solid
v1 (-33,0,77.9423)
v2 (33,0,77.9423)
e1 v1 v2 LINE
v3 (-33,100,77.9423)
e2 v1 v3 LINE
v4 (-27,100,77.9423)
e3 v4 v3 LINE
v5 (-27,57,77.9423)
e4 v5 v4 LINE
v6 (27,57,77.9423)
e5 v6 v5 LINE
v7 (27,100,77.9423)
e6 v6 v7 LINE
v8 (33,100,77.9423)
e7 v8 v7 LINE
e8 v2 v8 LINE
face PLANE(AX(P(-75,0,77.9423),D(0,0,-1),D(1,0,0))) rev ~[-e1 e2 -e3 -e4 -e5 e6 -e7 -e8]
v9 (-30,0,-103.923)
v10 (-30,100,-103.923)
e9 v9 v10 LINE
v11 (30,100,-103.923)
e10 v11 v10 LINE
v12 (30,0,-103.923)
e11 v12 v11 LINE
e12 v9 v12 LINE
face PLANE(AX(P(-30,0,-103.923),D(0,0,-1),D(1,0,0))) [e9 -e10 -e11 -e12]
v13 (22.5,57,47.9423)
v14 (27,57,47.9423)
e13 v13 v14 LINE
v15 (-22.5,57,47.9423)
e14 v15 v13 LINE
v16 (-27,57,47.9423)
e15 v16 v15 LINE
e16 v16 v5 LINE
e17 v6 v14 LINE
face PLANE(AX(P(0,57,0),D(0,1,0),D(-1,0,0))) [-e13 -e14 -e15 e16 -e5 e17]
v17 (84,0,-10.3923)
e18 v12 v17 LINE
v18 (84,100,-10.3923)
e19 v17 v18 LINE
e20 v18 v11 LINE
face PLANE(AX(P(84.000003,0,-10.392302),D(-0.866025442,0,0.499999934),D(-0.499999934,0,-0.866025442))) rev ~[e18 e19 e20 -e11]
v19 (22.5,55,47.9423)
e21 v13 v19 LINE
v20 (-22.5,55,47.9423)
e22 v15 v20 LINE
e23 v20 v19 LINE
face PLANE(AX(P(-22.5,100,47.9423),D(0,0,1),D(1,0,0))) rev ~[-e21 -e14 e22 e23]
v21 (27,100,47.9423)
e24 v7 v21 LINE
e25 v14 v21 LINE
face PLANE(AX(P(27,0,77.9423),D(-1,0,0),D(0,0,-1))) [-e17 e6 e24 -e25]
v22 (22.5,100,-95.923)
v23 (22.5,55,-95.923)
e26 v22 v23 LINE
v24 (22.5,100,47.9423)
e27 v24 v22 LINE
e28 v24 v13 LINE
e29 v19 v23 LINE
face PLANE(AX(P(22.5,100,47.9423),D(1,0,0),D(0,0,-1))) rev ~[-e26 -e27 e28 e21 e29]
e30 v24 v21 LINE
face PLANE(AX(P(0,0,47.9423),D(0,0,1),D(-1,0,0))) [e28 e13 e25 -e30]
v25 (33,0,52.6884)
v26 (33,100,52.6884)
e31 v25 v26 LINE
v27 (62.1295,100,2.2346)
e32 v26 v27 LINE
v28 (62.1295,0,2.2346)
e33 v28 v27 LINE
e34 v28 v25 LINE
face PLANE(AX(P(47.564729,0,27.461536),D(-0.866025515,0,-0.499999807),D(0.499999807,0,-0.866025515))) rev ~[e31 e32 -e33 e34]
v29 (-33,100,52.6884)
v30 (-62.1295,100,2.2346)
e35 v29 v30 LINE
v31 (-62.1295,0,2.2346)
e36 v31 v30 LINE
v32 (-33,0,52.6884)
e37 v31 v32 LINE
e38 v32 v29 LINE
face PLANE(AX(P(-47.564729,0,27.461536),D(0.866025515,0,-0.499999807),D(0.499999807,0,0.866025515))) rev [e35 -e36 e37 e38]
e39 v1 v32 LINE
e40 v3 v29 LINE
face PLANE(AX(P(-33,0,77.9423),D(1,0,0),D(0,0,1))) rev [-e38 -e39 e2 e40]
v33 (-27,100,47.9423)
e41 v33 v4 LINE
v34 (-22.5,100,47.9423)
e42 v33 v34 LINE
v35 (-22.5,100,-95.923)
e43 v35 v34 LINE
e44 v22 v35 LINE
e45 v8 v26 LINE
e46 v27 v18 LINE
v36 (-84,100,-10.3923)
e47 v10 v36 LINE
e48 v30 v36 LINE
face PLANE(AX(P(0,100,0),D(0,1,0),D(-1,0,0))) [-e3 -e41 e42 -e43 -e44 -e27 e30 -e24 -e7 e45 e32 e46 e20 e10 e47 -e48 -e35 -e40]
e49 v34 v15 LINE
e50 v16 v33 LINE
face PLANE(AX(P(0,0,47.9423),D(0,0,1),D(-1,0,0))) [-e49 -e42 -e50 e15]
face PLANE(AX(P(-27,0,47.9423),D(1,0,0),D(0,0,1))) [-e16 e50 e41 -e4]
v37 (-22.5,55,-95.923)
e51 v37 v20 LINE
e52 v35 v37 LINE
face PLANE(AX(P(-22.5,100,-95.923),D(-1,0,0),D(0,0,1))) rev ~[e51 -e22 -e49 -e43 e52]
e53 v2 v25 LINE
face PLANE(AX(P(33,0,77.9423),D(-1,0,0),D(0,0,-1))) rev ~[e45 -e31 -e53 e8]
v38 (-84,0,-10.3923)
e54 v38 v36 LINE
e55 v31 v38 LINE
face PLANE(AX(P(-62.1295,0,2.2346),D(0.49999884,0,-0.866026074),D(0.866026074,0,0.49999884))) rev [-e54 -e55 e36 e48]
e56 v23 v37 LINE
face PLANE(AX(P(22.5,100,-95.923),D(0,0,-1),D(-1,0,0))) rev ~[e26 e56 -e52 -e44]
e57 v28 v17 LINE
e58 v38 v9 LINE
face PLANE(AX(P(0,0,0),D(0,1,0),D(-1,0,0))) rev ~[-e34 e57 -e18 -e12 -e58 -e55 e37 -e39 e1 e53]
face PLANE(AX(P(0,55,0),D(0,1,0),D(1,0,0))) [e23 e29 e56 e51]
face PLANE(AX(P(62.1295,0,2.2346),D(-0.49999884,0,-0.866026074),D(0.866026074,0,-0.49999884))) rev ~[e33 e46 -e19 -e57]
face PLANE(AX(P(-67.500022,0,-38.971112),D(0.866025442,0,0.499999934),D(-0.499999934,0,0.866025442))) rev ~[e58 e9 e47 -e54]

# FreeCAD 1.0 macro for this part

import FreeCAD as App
import Part
import Sketcher
Q = App.Units.Quantity


def add_polygon(sketch, points):
    """Adds a closed chain of lines whose ends are joined by coincident constraints."""
    first, n = sketch.GeometryCount, len(points)
    for a, b in zip(points, points[1:] + points[:1]):
        sketch.addGeometry(Part.LineSegment(App.Vector(*a, 0), App.Vector(*b, 0)), False)
    for i in range(n):
        sketch.addConstraint(Sketcher.Constraint("Coincident", first + i, 2, first + (i + 1) % n, 1))

doc = App.newDocument("Part")
body = doc.addObject("PartDesign::Body", "Body")

# Sketch on XZ plane
sketch1 = body.newObject("Sketcher::SketchObject", "Sketch")
sketch1.AttachmentSupport = (doc.getObject("XZ_Plane"), [""])
sketch1.MapMode = "FlatFace"
add_polygon(sketch1, [(-75, 78), (75, 78), (105, 26), (30, -104), (-30, -104), (-105, 26)])  # lines 0-5
sketch1.addConstraint([
    Sketcher.Constraint("Horizontal", 0),
    Sketcher.Constraint("Horizontal", 3),
    Sketcher.Constraint("Symmetric", 1, 2, 4, 2, -2),
    Sketcher.Constraint("Parallel", 1, 4),
    Sketcher.Constraint("Parallel", 2, 5),
    Sketcher.Constraint("Equal", 2, 4),
    Sketcher.Constraint("DistanceX", -1, 1, 2, 2, Q("30 mm")),
    Sketcher.Constraint("DistanceX", 0, 2, 1, 2, Q("30 mm")),
    Sketcher.Constraint("DistanceX", 0, 1, 0, 2, Q("150 mm")),
    Sketcher.Constraint("Angle", 1, Q("-60 deg")),
    Sketcher.Constraint("DistanceY", 2, 2, -1, 1, Q("103.923 mm")),
])
pad1 = body.newObject("PartDesign::Pad", "Pad")
pad1.Profile = sketch1
pad1.Length = 100
pad1.Reversed = True

# Sketch on XZ plane
sketch2 = body.newObject("Sketcher::SketchObject", "Sketch001")
sketch2.AttachmentSupport = (doc.getObject("XZ_Plane"), [""])
sketch2.MapMode = "FlatFace"
add_polygon(sketch2, [(62, 2), (33, 53), (33, 78), (75, 78), (105, 26), (84, -10)])  # lines 0-5
sketch2.addConstraint([
    Sketcher.Constraint("Vertical", 1),
    Sketcher.Constraint("Horizontal", 2),
    Sketcher.Constraint("Parallel", 0, 3),
    Sketcher.Constraint("Perpendicular", 4, 5),
    Sketcher.Constraint("DistanceX", 2, 1, 2, 2, Q("42 mm")),
    Sketcher.Constraint("Distance", 4, Q("42 mm")),
    Sketcher.Constraint("DistanceX", 2, 2, 3, 2, Q("30 mm")),
    Sketcher.Constraint("Angle", 0, Q("120 deg")),
    Sketcher.Constraint("Angle", 4, Q("-120 deg")),
    Sketcher.Constraint("DistanceX", -1, 1, 0, 2, Q("33 mm")),
    Sketcher.Constraint("DistanceY", 1, 1, 1, 2, Q("25.254 mm")),
    Sketcher.Constraint("DistanceY", -1, 1, 0, 2, Q("52.6884 mm")),
])
pocket1 = body.newObject("PartDesign::Pocket", "Pocket")
pocket1.Profile = sketch2
pocket1.Length = 100
doc.recompute()

mirrored = body.newObject("PartDesign::Mirrored", "Mirrored")
mirrored.Originals = [pocket1]
mirrored.MirrorPlane = (doc.getObject("YZ_Plane"), [""])
body.Tip = mirrored

# Sketch on XZ plane
sketch3 = body.newObject("Sketcher::SketchObject", "Sketch002")
sketch3.AttachmentSupport = (doc.getObject("XZ_Plane"), [""])
sketch3.MapMode = "FlatFace"
add_polygon(sketch3, [(-27, 48), (-27, 78), (27, 78), (27, 48)])  # lines 0-3
sketch3.addConstraint([
    Sketcher.Constraint("Vertical", 0),
    Sketcher.Constraint("Horizontal", 1),
    Sketcher.Constraint("Vertical", 2),
    Sketcher.Constraint("Horizontal", 3),
    Sketcher.Constraint("DistanceX", 1, 1, 1, 2, Q("54 mm")),
    Sketcher.Constraint("DistanceY", 0, 1, 0, 2, Q("30 mm")),
    Sketcher.Constraint("DistanceX", 0, 2, -1, 1, Q("27 mm")),
    Sketcher.Constraint("DistanceY", -1, 1, 0, 2, Q("77.9423 mm")),
])
pocket2 = body.newObject("PartDesign::Pocket", "Pocket001")
pocket2.Profile = sketch3
pocket2.Length = 100

# Sketch on XZ plane
sketch4 = body.newObject("Sketcher::SketchObject", "Sketch003")
sketch4.AttachmentSupport = (doc.getObject("XZ_Plane"), [""])
sketch4.MapMode = "FlatFace"
add_polygon(sketch4, [(-27, 48), (-27, 78), (27, 78), (27, 48)])  # lines 0-3
sketch4.addConstraint([
    Sketcher.Constraint("Vertical", 0),
    Sketcher.Constraint("Horizontal", 1),
    Sketcher.Constraint("Vertical", 2),
    Sketcher.Constraint("Horizontal", 3),
    Sketcher.Constraint("DistanceX", 1, 1, 1, 2, Q("54 mm")),
    Sketcher.Constraint("DistanceY", 0, 1, 0, 2, Q("30 mm")),
    Sketcher.Constraint("DistanceX", 0, 2, -1, 1, Q("27 mm")),
    Sketcher.Constraint("DistanceY", -1, 1, 0, 2, Q("77.9423 mm")),
])
pad2 = body.newObject("PartDesign::Pad", "Pad001")
pad2.Profile = sketch4
pad2.Length = 57
pad2.Reversed = True

# Sketch on XZ plane
sketch5 = body.newObject("Sketcher::SketchObject", "Sketch004")
sketch5.AttachmentSupport = (doc.getObject("XZ_Plane"), [""])
sketch5.MapMode = "FlatFace"
sketch5.AttachmentOffset = App.Placement(App.Vector(0, 0, -100), App.Rotation())
add_polygon(sketch5, [(-22, -96), (-22, 48), (22, 48), (22, -96)])  # lines 0-3
sketch5.addConstraint([
    Sketcher.Constraint("Vertical", 0),
    Sketcher.Constraint("Horizontal", 1),
    Sketcher.Constraint("Vertical", 2),
    Sketcher.Constraint("Horizontal", 3),
    Sketcher.Constraint("DistanceX", 1, 1, 1, 2, Q("45 mm")),
    Sketcher.Constraint("DistanceX", 0, 2, -1, 1, Q("22.5 mm")),
    Sketcher.Constraint("DistanceY", 0, 1, 0, 2, Q("143.8653 mm")),
    Sketcher.Constraint("DistanceY", 2, 2, -1, 1, Q("95.923 mm")),
])
pocket3 = body.newObject("PartDesign::Pocket", "Pocket002")
pocket3.Profile = sketch5
pocket3.Length = 45
pocket3.Reversed = True

doc.recompute()
